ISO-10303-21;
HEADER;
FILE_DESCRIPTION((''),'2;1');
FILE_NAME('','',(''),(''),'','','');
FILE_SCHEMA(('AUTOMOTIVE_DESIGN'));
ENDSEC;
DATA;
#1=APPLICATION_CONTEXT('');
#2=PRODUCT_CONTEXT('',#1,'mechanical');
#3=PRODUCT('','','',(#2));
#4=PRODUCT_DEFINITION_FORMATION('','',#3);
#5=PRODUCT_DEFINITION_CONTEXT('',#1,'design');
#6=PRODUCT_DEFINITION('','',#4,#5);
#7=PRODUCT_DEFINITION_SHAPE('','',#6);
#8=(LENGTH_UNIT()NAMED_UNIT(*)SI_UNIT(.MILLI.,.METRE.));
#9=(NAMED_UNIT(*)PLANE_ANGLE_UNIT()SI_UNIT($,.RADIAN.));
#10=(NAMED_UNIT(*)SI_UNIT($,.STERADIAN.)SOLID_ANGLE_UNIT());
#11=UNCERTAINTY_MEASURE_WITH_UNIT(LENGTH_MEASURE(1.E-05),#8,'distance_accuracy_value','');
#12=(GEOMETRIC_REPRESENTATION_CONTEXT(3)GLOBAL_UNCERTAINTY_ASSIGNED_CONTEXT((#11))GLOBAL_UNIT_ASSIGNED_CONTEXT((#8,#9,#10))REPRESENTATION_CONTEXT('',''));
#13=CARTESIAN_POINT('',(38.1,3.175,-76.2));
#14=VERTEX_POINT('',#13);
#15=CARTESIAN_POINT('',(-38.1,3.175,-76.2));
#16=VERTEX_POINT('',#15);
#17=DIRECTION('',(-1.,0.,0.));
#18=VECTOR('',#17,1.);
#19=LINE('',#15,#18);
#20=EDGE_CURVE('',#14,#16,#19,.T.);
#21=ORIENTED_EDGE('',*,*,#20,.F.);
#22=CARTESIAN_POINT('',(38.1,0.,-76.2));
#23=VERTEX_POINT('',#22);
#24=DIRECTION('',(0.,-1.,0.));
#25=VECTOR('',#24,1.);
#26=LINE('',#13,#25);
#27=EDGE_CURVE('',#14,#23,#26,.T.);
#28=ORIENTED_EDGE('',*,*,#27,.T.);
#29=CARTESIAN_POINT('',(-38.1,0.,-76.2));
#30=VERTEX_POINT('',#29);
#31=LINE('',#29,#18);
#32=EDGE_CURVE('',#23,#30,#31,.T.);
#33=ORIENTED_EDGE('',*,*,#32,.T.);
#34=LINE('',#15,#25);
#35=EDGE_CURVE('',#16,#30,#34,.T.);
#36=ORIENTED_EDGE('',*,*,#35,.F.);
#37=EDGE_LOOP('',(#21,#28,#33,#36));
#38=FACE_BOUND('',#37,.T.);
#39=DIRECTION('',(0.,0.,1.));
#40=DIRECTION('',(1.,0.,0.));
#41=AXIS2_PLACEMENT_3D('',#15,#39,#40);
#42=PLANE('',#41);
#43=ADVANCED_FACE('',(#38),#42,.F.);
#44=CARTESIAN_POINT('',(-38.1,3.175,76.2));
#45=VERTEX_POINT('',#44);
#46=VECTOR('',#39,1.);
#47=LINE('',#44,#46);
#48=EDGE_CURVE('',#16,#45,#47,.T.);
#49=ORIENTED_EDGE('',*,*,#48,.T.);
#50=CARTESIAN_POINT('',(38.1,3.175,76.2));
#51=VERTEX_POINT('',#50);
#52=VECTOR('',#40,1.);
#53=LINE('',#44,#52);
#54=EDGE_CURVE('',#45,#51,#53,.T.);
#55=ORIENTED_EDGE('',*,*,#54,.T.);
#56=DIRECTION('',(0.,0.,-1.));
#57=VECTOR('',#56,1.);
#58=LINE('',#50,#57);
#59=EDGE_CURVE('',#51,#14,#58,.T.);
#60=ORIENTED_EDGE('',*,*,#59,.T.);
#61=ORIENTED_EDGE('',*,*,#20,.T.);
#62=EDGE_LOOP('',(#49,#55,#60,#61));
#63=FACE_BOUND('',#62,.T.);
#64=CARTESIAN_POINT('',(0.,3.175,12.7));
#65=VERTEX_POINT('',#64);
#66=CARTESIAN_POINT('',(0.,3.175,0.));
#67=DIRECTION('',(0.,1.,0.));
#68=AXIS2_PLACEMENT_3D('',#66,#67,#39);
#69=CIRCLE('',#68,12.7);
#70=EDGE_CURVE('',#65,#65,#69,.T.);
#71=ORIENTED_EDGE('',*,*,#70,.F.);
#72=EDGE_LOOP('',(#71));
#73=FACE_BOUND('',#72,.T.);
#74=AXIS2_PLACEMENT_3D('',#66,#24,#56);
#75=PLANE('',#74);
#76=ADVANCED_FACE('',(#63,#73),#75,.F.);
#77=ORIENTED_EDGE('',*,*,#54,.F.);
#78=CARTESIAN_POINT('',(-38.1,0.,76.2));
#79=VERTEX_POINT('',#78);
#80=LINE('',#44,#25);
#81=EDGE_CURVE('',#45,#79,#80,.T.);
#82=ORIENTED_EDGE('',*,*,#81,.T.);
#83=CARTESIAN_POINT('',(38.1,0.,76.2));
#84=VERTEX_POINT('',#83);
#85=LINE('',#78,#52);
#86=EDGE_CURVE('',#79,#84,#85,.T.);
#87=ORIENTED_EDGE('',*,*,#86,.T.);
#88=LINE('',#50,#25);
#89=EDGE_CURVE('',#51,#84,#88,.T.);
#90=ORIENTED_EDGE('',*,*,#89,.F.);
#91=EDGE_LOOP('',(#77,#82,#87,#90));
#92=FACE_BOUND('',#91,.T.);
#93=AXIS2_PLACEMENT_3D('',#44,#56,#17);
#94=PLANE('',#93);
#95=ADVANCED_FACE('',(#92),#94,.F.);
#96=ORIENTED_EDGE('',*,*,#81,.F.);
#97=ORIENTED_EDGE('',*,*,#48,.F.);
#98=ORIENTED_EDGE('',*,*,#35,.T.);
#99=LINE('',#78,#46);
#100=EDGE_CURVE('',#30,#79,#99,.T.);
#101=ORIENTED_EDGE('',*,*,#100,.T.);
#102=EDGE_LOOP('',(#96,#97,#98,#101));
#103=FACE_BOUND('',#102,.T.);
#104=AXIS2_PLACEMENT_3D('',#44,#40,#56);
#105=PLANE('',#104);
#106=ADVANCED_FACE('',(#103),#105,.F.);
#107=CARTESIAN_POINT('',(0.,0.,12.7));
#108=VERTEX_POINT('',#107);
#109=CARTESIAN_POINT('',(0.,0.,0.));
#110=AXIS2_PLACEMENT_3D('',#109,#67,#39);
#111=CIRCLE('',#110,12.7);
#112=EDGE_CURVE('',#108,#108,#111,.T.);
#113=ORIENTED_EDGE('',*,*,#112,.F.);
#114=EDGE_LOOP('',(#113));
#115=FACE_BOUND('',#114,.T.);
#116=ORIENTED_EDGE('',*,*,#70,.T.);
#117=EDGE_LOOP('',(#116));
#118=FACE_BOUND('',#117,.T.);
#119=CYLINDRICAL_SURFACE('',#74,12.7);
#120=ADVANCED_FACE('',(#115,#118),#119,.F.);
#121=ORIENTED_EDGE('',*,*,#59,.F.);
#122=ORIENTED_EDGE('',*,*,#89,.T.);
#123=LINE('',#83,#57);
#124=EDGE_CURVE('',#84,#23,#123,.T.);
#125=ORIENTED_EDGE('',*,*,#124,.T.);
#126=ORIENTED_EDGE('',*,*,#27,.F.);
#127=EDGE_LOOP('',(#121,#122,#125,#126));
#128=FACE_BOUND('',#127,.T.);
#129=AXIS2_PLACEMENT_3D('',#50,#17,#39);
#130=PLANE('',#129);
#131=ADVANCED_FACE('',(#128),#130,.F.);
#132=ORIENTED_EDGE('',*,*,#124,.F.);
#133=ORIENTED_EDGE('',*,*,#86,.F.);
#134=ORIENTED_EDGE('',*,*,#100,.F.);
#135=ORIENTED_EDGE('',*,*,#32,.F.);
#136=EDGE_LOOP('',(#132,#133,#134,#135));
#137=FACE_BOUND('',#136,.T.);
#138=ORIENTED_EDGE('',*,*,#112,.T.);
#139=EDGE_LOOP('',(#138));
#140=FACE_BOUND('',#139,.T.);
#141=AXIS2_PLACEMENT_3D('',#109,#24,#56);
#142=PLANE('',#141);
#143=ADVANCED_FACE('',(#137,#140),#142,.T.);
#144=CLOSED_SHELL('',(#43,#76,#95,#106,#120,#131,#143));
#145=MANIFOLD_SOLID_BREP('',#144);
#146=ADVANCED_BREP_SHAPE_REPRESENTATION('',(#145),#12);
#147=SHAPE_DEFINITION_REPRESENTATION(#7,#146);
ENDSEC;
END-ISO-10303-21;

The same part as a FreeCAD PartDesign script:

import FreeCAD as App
import Part
import Sketcher
Q = App.Units.Quantity


def add_polygon(sketch, points):
    """Adds a closed chain of lines whose ends are joined by coincident constraints."""
    first, n = sketch.GeometryCount, len(points)
    for a, b in zip(points, points[1:] + points[:1]):
        sketch.addGeometry(Part.LineSegment(App.Vector(*a, 0), App.Vector(*b, 0)), False)
    for i in range(n):
        sketch.addConstraint(Sketcher.Constraint("Coincident", first + i, 2, first + (i + 1) % n, 1))

doc = App.newDocument("Part")
params = doc.addObject("Spreadsheet::Sheet", "Params")
for row, (alias, value) in enumerate([
    ("sketch1_diameter", "1 in"),
    ("sketch1_width", "3 in"),
    ("sketch1_height", "6 in"),
    ("pad1_length", "0.125 in"),
], start=1):
    params.set(f"A{row}", alias)
    params.set(f"B{row}", "=" + value)
    params.setAlias(f"B{row}", alias)

body = doc.addObject("PartDesign::Body", "Body")

sketch1 = doc.addObject("Sketcher::SketchObject", "Sketch")
body.addObject(sketch1)
sketch1.AttachmentSupport = (doc.XZ_Plane, [""])
sketch1.MapMode = "FlatFace"
add_polygon(sketch1, [(-38, -76), (-38, 76), (38, 76), (38, -76)])
sketch1.addGeometry(Part.Circle(App.Vector(0, 0, 0), App.Vector(0, 0, 1), 13), False)
sketch1.addConstraint([
    Sketcher.Constraint("Vertical", 0),
    Sketcher.Constraint("Horizontal", 1),
    Sketcher.Constraint("Vertical", 2),
    Sketcher.Constraint("Horizontal", 3),
    Sketcher.Constraint("Coincident", 4, 3, -1, 1),
    Sketcher.Constraint("Symmetric", 0, 2, 2, 2, -1, 1),
    Sketcher.Constraint("Diameter", 4, Q("1 in")),
    Sketcher.Constraint("DistanceX", 1, 1, 1, 2, Q("3 in")),
    Sketcher.Constraint("DistanceY", 0, 1, 0, 2, Q("6 in")),
])
sketch1.setExpression("Constraints[10]", "Params.sketch1_diameter")
sketch1.setExpression("Constraints[11]", "Params.sketch1_width")
sketch1.setExpression("Constraints[12]", "Params.sketch1_height")
pad1 = doc.addObject("PartDesign::Pad", "Pad")
body.addObject(pad1)
pad1.Profile = sketch1
pad1.setExpression("Length", "Params.pad1_length")
pad1.Reversed = True

doc.recompute()
